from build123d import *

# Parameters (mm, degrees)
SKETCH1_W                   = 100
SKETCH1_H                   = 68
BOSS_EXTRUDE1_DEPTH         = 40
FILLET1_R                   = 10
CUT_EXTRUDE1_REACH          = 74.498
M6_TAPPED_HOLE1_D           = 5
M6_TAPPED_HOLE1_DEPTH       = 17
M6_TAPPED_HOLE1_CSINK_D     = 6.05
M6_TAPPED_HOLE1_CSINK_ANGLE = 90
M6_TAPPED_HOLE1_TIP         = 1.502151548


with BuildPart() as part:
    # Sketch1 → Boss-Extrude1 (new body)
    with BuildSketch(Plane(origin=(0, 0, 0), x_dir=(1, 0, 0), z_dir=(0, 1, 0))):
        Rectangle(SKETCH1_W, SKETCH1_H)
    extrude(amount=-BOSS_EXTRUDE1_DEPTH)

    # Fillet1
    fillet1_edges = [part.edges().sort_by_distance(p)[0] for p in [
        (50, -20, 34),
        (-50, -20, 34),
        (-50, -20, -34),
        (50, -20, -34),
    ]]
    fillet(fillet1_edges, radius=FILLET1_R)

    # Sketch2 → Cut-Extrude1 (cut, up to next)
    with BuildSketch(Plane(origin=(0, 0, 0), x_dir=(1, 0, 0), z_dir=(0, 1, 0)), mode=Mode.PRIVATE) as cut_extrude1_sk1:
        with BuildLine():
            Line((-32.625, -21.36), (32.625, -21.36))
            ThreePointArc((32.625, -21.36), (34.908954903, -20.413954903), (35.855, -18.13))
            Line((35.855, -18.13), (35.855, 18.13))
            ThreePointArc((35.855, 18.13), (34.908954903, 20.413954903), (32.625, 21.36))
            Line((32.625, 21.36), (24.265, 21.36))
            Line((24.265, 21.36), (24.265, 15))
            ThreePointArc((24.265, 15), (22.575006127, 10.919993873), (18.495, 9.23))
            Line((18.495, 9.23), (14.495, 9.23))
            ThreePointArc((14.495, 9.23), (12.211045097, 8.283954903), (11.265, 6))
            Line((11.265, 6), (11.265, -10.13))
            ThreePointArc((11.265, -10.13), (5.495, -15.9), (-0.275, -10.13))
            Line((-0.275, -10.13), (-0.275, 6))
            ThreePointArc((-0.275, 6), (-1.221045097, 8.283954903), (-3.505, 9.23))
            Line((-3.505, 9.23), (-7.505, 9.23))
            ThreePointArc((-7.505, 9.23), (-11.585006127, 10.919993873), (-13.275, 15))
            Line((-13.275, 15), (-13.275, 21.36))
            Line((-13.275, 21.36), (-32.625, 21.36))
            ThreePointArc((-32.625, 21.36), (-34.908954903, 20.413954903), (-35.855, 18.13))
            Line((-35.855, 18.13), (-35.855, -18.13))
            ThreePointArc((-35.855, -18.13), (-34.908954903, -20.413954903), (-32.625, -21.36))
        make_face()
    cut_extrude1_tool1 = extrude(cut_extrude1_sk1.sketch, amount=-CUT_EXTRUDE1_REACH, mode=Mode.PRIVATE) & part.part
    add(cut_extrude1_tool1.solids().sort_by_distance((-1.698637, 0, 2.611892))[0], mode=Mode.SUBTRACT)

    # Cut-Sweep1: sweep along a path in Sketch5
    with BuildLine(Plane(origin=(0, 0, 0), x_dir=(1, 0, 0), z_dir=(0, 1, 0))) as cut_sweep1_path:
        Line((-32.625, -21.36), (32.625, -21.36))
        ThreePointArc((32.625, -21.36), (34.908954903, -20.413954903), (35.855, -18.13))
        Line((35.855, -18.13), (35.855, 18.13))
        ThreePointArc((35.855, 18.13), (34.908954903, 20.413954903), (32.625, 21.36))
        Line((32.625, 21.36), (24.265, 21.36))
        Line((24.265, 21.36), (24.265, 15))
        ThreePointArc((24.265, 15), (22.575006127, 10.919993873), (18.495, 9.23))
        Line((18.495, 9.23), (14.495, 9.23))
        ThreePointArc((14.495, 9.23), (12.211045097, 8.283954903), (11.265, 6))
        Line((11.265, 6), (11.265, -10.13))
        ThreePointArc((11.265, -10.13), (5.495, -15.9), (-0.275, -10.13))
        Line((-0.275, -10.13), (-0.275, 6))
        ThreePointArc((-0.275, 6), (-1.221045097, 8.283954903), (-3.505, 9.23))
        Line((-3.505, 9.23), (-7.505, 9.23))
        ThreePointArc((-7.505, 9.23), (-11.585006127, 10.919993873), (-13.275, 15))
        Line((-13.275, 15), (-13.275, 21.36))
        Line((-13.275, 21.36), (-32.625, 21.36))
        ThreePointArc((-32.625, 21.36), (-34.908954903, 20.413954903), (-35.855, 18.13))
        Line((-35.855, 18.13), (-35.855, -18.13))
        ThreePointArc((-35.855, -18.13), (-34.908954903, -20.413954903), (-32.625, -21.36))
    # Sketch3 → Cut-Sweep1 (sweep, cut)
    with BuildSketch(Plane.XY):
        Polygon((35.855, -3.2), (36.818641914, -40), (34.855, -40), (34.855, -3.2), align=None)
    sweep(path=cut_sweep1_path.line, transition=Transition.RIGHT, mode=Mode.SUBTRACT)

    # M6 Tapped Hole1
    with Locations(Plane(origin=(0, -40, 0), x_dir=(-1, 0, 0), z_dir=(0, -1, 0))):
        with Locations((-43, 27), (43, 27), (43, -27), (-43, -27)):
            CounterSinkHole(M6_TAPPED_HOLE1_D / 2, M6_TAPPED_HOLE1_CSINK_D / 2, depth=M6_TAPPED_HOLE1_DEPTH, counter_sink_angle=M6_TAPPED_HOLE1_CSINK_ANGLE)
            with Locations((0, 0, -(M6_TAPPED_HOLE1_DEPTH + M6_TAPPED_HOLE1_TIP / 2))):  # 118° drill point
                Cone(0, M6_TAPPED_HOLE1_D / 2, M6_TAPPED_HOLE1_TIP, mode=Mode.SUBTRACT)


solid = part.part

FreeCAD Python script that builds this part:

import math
import FreeCAD as App
import Part
import Sketcher
from FreeCAD import Vector
Q = App.Units.Quantity


def edges_at(feature, points):
    """Names of the edges that pass closest to the given points."""
    edges = feature.Shape.Edges
    near = lambda p: min(range(len(edges)), key=lambda i: edges[i].distToShape(Part.Vertex(*p))[0])
    return sorted({f"Edge{near(p) + 1}" for p in points})

doc = App.newDocument("Part")
body = doc.addObject("PartDesign::Body", "Body")

# Sketch on XZ plane
sketch1 = body.newObject("Sketcher::SketchObject", "Sketch")
sketch1.AttachmentSupport = (doc.getObject("XZ_Plane"), [""])
sketch1.MapMode = "FlatFace"
sketch1.addGeometry([
    Part.LineSegment(Vector(-50, -34, 0), Vector(-50, 34, 0)),
    Part.LineSegment(Vector(-50, 34, 0), Vector(50, 34, 0)),
    Part.LineSegment(Vector(50, 34, 0), Vector(50, -34, 0)),
    Part.LineSegment(Vector(50, -34, 0), Vector(-50, -34, 0)),
], False)
sketch1.addConstraint([
    Sketcher.Constraint("Coincident", 0, 2, 1, 1),
    Sketcher.Constraint("Coincident", 1, 2, 2, 1),
    Sketcher.Constraint("Coincident", 2, 2, 3, 1),
    Sketcher.Constraint("Coincident", 3, 2, 0, 1),
    Sketcher.Constraint("Vertical", 0),
    Sketcher.Constraint("Horizontal", 1),
    Sketcher.Constraint("Vertical", 2),
    Sketcher.Constraint("Horizontal", 3),
    Sketcher.Constraint("Symmetric", 0, 2, 2, 2, -1, 1),
    Sketcher.Constraint("DistanceX", 1, 1, 1, 2, 100.0),
    Sketcher.Constraint("DistanceY", 0, 1, 0, 2, 68.0),
])
pad1 = body.newObject("PartDesign::Pad", "Pad")
pad1.Profile = sketch1
pad1.Length = 40
doc.recompute()

fillet = body.newObject("PartDesign::Fillet", "Fillet")
fillet.Base = (pad1, edges_at(pad1, [
    (50, -20, 34),
    (-50, -20, 34),
    (-50, -20, -34),
    (50, -20, -34),
]))
fillet.Radius = 10

# Sketch on XZ plane
sketch2 = body.newObject("Sketcher::SketchObject", "Sketch001")
sketch2.AttachmentSupport = (doc.getObject("XZ_Plane"), [""])
sketch2.MapMode = "FlatFace"
sketch2.addGeometry([
    Part.LineSegment(Vector(-32.6, 21.4, 0), Vector(32.6, 21.4, 0)),  # 0
    Part.ArcOfCircle(Part.Circle(Vector(32.6, 18.1, 0), Vector(0, 0, 1), 3.2), math.radians(0), math.radians(90)),  # 1
    Part.LineSegment(Vector(35.9, 18.1, 0), Vector(35.9, -18.1, 0)),  # 2
    Part.ArcOfCircle(Part.Circle(Vector(32.6, -18.1, 0), Vector(0, 0, 1), 3.2), math.radians(-90), math.radians(0)),  # 3
    Part.LineSegment(Vector(32.6, -21.4, 0), Vector(24.3, -21.4, 0)),  # 4
    Part.LineSegment(Vector(24.3, -21.4, 0), Vector(24.3, -15, 0)),  # 5
    Part.ArcOfCircle(Part.Circle(Vector(18.5, -15, 0), Vector(0, 0, 1), 5.8), math.radians(0), math.radians(90)),  # 6
    Part.LineSegment(Vector(18.5, -9.2, 0), Vector(14.5, -9.2, 0)),  # 7
    Part.ArcOfCircle(Part.Circle(Vector(14.5, -6, 0), Vector(0, 0, 1), 3.2), math.radians(-180), math.radians(-90)),  # 8
    Part.LineSegment(Vector(11.3, -6, 0), Vector(11.3, 10.1, 0)),  # 9
    Part.ArcOfCircle(Part.Circle(Vector(5.5, 10.1, 0), Vector(0, 0, 1), 5.8), math.radians(0), math.radians(180)),  # 10
    Part.LineSegment(Vector(-0.3, 10.1, 0), Vector(-0.3, -6, 0)),  # 11
    Part.ArcOfCircle(Part.Circle(Vector(-3.5, -6, 0), Vector(0, 0, 1), 3.2), math.radians(-90), math.radians(0)),  # 12
    Part.LineSegment(Vector(-3.5, -9.2, 0), Vector(-7.5, -9.2, 0)),  # 13
    Part.ArcOfCircle(Part.Circle(Vector(-7.5, -15, 0), Vector(0, 0, 1), 5.8), math.radians(90), math.radians(180)),  # 14
    Part.LineSegment(Vector(-13.3, -15, 0), Vector(-13.3, -21.4, 0)),  # 15
    Part.LineSegment(Vector(-13.3, -21.4, 0), Vector(-32.6, -21.4, 0)),  # 16
    Part.ArcOfCircle(Part.Circle(Vector(-32.6, -18.1, 0), Vector(0, 0, 1), 3.2), math.radians(-180), math.radians(-90)),  # 17
    Part.LineSegment(Vector(-35.9, -18.1, 0), Vector(-35.9, 18.1, 0)),  # 18
    Part.ArcOfCircle(Part.Circle(Vector(-32.6, 18.1, 0), Vector(0, 0, 1), 3.2), math.radians(90), math.radians(180)),  # 19
], False)
sketch2.addConstraint([
    Sketcher.Constraint("Tangent", 0, 2, 1, 2),
    Sketcher.Constraint("Tangent", 1, 1, 2, 1),
    Sketcher.Constraint("Tangent", 2, 2, 3, 2),
    Sketcher.Constraint("Tangent", 3, 1, 4, 1),
    Sketcher.Constraint("Coincident", 4, 2, 5, 1),
    Sketcher.Constraint("Tangent", 5, 2, 6, 1),
    Sketcher.Constraint("Tangent", 6, 2, 7, 1),
    Sketcher.Constraint("Tangent", 7, 2, 8, 2),
    Sketcher.Constraint("Tangent", 8, 1, 9, 1),
    Sketcher.Constraint("Tangent", 9, 2, 10, 1),
    Sketcher.Constraint("Tangent", 10, 2, 11, 1),
    Sketcher.Constraint("Tangent", 11, 2, 12, 2),
    Sketcher.Constraint("Tangent", 12, 1, 13, 1),
    Sketcher.Constraint("Tangent", 13, 2, 14, 1),
    Sketcher.Constraint("Tangent", 14, 2, 15, 1),
    Sketcher.Constraint("Coincident", 15, 2, 16, 1),
    Sketcher.Constraint("Tangent", 16, 2, 17, 2),
    Sketcher.Constraint("Tangent", 17, 1, 18, 1),
    Sketcher.Constraint("Tangent", 18, 2, 19, 2),
    Sketcher.Constraint("Tangent", 19, 1, 0, 1),
    Sketcher.Constraint("Horizontal", 0),
    Sketcher.Constraint("Vertical", 2),
    Sketcher.Constraint("Horizontal", 4),
    Sketcher.Constraint("Vertical", 5),
    Sketcher.Constraint("Horizontal", 7),
    Sketcher.Constraint("Vertical", 9),
    Sketcher.Constraint("Vertical", 11),
    Sketcher.Constraint("Horizontal", 13),
    Sketcher.Constraint("Vertical", 15),
    Sketcher.Constraint("Horizontal", 16),
    Sketcher.Constraint("Vertical", 18),
    Sketcher.Constraint("Equal", 1, 3),
    Sketcher.Constraint("Equal", 3, 8),
    Sketcher.Constraint("Equal", 6, 10),
    Sketcher.Constraint("Equal", 8, 12),
    Sketcher.Constraint("Equal", 10, 14),
    Sketcher.Constraint("Equal", 12, 17),
    Sketcher.Constraint("Equal", 17, 19),
    Sketcher.Constraint("Symmetric", 1, 3, 17, 3, -1, 1),
    Sketcher.Constraint("Horizontal", 8, 3, 12, 3),
    Sketcher.Constraint("Horizontal", 3, 3, 17, 3),
    Sketcher.Constraint("Equal", 7, 13),
    Sketcher.Constraint("DistanceX", 7, 2, 7, 1, 4.0),
    Sketcher.Constraint("Radius", 1, 3.23),
    Sketcher.Constraint("Radius", 6, 5.77),
    Sketcher.Constraint("DistanceY", 6, 3, -1, 1, 15.0),
    Sketcher.Constraint("DistanceY", 10, 3, 1, 3, 8.0),
    Sketcher.Constraint("DistanceX", 0, 1, 0, 2, 65.25),
    Sketcher.Constraint("DistanceX", 4, 2, 4, 1, 8.36),
    Sketcher.Constraint("DistanceY", 2, 2, 2, 1, 36.26),
])
pocket1 = body.newObject("PartDesign::Pocket", "Pocket")
pocket1.Profile = sketch2
pocket1.Type = "UpToFirst"
pocket1.Reversed = True

# Sketch on XY plane
sketch3 = body.newObject("Sketcher::SketchObject", "Sketch002")
sketch3.AttachmentSupport = (doc.getObject("XY_Plane"), [""])
sketch3.MapMode = "FlatFace"
sketch3.addGeometry([
    Part.LineSegment(Vector(36.8, -40, 0), Vector(35.9, -3.2, 0)),
    Part.LineSegment(Vector(35.9, -3.2, 0), Vector(34.9, -3.2, 0)),
    Part.LineSegment(Vector(34.9, -3.2, 0), Vector(34.9, -40, 0)),
    Part.LineSegment(Vector(34.9, -40, 0), Vector(36.8, -40, 0)),
], False)
sketch3.addConstraint([
    Sketcher.Constraint("Coincident", 0, 2, 1, 1),
    Sketcher.Constraint("Coincident", 1, 2, 2, 1),
    Sketcher.Constraint("Coincident", 2, 2, 3, 1),
    Sketcher.Constraint("Coincident", 3, 2, 0, 1),
    Sketcher.Constraint("Horizontal", 1),
    Sketcher.Constraint("Vertical", 2),
    Sketcher.Constraint("Horizontal", 3),
    Sketcher.Constraint("DistanceX", 1, 2, 1, 1, 1.0),
    Sketcher.Constraint("DistanceY", 2, 2, 2, 1, 36.8),
    Sketcher.Constraint("DistanceY", 2, 2, -1, 1, 40.0),
    Sketcher.Constraint("Angle", 0, Q("91.5 deg")),
    Sketcher.Constraint("DistanceX", -1, 1, 0, 2, 35.855),
])

# Sketch on XZ plane
sketch4 = body.newObject("Sketcher::SketchObject", "Sketch003")
sketch4.AttachmentSupport = (doc.getObject("XZ_Plane"), [""])
sketch4.MapMode = "FlatFace"
sketch4.addGeometry([
    Part.LineSegment(Vector(-32.6, 21.4, 0), Vector(32.6, 21.4, 0)),  # 0
    Part.ArcOfCircle(Part.Circle(Vector(32.6, 18.1, 0), Vector(0, 0, 1), 3.2), math.radians(0), math.radians(90)),  # 1
    Part.LineSegment(Vector(35.9, 18.1, 0), Vector(35.9, -18.1, 0)),  # 2
    Part.ArcOfCircle(Part.Circle(Vector(32.6, -18.1, 0), Vector(0, 0, 1), 3.2), math.radians(-90), math.radians(0)),  # 3
    Part.LineSegment(Vector(32.6, -21.4, 0), Vector(24.3, -21.4, 0)),  # 4
    Part.LineSegment(Vector(24.3, -21.4, 0), Vector(24.3, -15, 0)),  # 5
    Part.ArcOfCircle(Part.Circle(Vector(18.5, -15, 0), Vector(0, 0, 1), 5.8), math.radians(0), math.radians(90)),  # 6
    Part.LineSegment(Vector(18.5, -9.2, 0), Vector(14.5, -9.2, 0)),  # 7
    Part.ArcOfCircle(Part.Circle(Vector(14.5, -6, 0), Vector(0, 0, 1), 3.2), math.radians(-180), math.radians(-90)),  # 8
    Part.LineSegment(Vector(11.3, -6, 0), Vector(11.3, 10.1, 0)),  # 9
    Part.ArcOfCircle(Part.Circle(Vector(5.5, 10.1, 0), Vector(0, 0, 1), 5.8), math.radians(0), math.radians(180)),  # 10
    Part.LineSegment(Vector(-0.3, 10.1, 0), Vector(-0.3, -6, 0)),  # 11
    Part.ArcOfCircle(Part.Circle(Vector(-3.5, -6, 0), Vector(0, 0, 1), 3.2), math.radians(-90), math.radians(0)),  # 12
    Part.LineSegment(Vector(-3.5, -9.2, 0), Vector(-7.5, -9.2, 0)),  # 13
    Part.ArcOfCircle(Part.Circle(Vector(-7.5, -15, 0), Vector(0, 0, 1), 5.8), math.radians(90), math.radians(180)),  # 14
    Part.LineSegment(Vector(-13.3, -15, 0), Vector(-13.3, -21.4, 0)),  # 15
    Part.LineSegment(Vector(-13.3, -21.4, 0), Vector(-32.6, -21.4, 0)),  # 16
    Part.ArcOfCircle(Part.Circle(Vector(-32.6, -18.1, 0), Vector(0, 0, 1), 3.2), math.radians(-180), math.radians(-90)),  # 17
    Part.LineSegment(Vector(-35.9, -18.1, 0), Vector(-35.9, 18.1, 0)),  # 18
    Part.ArcOfCircle(Part.Circle(Vector(-32.6, 18.1, 0), Vector(0, 0, 1), 3.2), math.radians(90), math.radians(180)),  # 19
], False)
sketch4.addConstraint([
    Sketcher.Constraint("Tangent", 0, 2, 1, 2),
    Sketcher.Constraint("Tangent", 1, 1, 2, 1),
    Sketcher.Constraint("Tangent", 2, 2, 3, 2),
    Sketcher.Constraint("Tangent", 3, 1, 4, 1),
    Sketcher.Constraint("Coincident", 4, 2, 5, 1),
    Sketcher.Constraint("Tangent", 5, 2, 6, 1),
    Sketcher.Constraint("Tangent", 6, 2, 7, 1),
    Sketcher.Constraint("Tangent", 7, 2, 8, 2),
    Sketcher.Constraint("Tangent", 8, 1, 9, 1),
    Sketcher.Constraint("Tangent", 9, 2, 10, 1),
    Sketcher.Constraint("Tangent", 10, 2, 11, 1),
    Sketcher.Constraint("Tangent", 11, 2, 12, 2),
    Sketcher.Constraint("Tangent", 12, 1, 13, 1),
    Sketcher.Constraint("Tangent", 13, 2, 14, 1),
    Sketcher.Constraint("Tangent", 14, 2, 15, 1),
    Sketcher.Constraint("Coincident", 15, 2, 16, 1),
    Sketcher.Constraint("Tangent", 16, 2, 17, 2),
    Sketcher.Constraint("Tangent", 17, 1, 18, 1),
    Sketcher.Constraint("Tangent", 18, 2, 19, 2),
    Sketcher.Constraint("Tangent", 19, 1, 0, 1),
    Sketcher.Constraint("Horizontal", 0),
    Sketcher.Constraint("Vertical", 2),
    Sketcher.Constraint("Horizontal", 4),
    Sketcher.Constraint("Vertical", 5),
    Sketcher.Constraint("Horizontal", 7),
    Sketcher.Constraint("Vertical", 9),
    Sketcher.Constraint("Vertical", 11),
    Sketcher.Constraint("Horizontal", 13),
    Sketcher.Constraint("Vertical", 15),
    Sketcher.Constraint("Horizontal", 16),
    Sketcher.Constraint("Vertical", 18),
    Sketcher.Constraint("Equal", 1, 3),
    Sketcher.Constraint("Equal", 3, 8),
    Sketcher.Constraint("Equal", 6, 10),
    Sketcher.Constraint("Equal", 8, 12),
    Sketcher.Constraint("Equal", 10, 14),
    Sketcher.Constraint("Equal", 12, 17),
    Sketcher.Constraint("Equal", 17, 19),
    Sketcher.Constraint("Symmetric", 1, 3, 17, 3, -1, 1),
    Sketcher.Constraint("Horizontal", 8, 3, 12, 3),
    Sketcher.Constraint("Horizontal", 3, 3, 17, 3),
    Sketcher.Constraint("Equal", 7, 13),
    Sketcher.Constraint("DistanceX", 7, 2, 7, 1, 4.0),
    Sketcher.Constraint("Radius", 1, 3.23),
    Sketcher.Constraint("Radius", 6, 5.77),
    Sketcher.Constraint("DistanceY", 6, 3, -1, 1, 15.0),
    Sketcher.Constraint("DistanceY", 10, 3, 1, 3, 8.0),
    Sketcher.Constraint("DistanceX", 0, 1, 0, 2, 65.25),
    Sketcher.Constraint("DistanceX", 4, 2, 4, 1, 8.36),
    Sketcher.Constraint("DistanceY", 2, 2, 2, 1, 36.26),
])
doc.recompute()

subtractivepipe = body.newObject("PartDesign::SubtractivePipe", "SubtractivePipe")
subtractivepipe.Profile = sketch3
subtractivepipe.Spine = (sketch4, ["Edge1", "Edge2", "Edge3", "Edge4", "Edge5", "Edge6", "Edge7", "Edge8", "Edge9", "Edge10", "Edge11", "Edge12", "Edge13", "Edge14", "Edge15", "Edge16", "Edge17", "Edge18", "Edge19", "Edge20"])
subtractivepipe.Transition = "Right corner"

# Sketch on XZ plane
sketch5 = body.newObject("Sketcher::SketchObject", "Sketch004")
sketch5.AttachmentSupport = (doc.getObject("XZ_Plane"), [""])
sketch5.MapMode = "FlatFace"
sketch5.AttachmentOffset = App.Placement(Vector(0, 0, 40), App.Rotation())
sketch5.addGeometry([
    Part.Circle(Vector(43, -27, 0), Vector(0, 0, 1), 2.5),
    Part.Circle(Vector(-43, -27, 0), Vector(0, 0, 1), 2.5),
    Part.Circle(Vector(-43, 27, 0), Vector(0, 0, 1), 2.5),
    Part.Circle(Vector(43, 27, 0), Vector(0, 0, 1), 2.5),
], False)
sketch5.addConstraint([
    Sketcher.Constraint("Equal", 0, 1),
    Sketcher.Constraint("Equal", 1, 2),
    Sketcher.Constraint("Equal", 2, 3),
    Sketcher.Constraint("Symmetric", 0, 3, 2, 3, -1, 1),
    Sketcher.Constraint("Symmetric", 1, 3, 3, 3, -1, 1),
    Sketcher.Constraint("Symmetric", 0, 3, 1, 3, -2),
    Sketcher.Constraint("Diameter", 0, 5.0),
    Sketcher.Constraint("DistanceX", -1, 1, 0, 3, 43.0),
    Sketcher.Constraint("DistanceY", 0, 3, -1, 1, 27.0),
])
doc.recompute()
hole = body.newObject("PartDesign::Hole", "Hole")
hole.Profile = sketch5
hole.ThreadType = "None"
hole.Diameter = 5
hole.DepthType = "Dimension"
hole.Depth = 17
hole.DrillPoint = "Angled"
hole.DrillPointAngle = 118
hole.HoleCutType = "Countersink"
hole.HoleCutDiameter = 6.05
hole.HoleCutCountersinkAngle = 90

doc.recompute()
